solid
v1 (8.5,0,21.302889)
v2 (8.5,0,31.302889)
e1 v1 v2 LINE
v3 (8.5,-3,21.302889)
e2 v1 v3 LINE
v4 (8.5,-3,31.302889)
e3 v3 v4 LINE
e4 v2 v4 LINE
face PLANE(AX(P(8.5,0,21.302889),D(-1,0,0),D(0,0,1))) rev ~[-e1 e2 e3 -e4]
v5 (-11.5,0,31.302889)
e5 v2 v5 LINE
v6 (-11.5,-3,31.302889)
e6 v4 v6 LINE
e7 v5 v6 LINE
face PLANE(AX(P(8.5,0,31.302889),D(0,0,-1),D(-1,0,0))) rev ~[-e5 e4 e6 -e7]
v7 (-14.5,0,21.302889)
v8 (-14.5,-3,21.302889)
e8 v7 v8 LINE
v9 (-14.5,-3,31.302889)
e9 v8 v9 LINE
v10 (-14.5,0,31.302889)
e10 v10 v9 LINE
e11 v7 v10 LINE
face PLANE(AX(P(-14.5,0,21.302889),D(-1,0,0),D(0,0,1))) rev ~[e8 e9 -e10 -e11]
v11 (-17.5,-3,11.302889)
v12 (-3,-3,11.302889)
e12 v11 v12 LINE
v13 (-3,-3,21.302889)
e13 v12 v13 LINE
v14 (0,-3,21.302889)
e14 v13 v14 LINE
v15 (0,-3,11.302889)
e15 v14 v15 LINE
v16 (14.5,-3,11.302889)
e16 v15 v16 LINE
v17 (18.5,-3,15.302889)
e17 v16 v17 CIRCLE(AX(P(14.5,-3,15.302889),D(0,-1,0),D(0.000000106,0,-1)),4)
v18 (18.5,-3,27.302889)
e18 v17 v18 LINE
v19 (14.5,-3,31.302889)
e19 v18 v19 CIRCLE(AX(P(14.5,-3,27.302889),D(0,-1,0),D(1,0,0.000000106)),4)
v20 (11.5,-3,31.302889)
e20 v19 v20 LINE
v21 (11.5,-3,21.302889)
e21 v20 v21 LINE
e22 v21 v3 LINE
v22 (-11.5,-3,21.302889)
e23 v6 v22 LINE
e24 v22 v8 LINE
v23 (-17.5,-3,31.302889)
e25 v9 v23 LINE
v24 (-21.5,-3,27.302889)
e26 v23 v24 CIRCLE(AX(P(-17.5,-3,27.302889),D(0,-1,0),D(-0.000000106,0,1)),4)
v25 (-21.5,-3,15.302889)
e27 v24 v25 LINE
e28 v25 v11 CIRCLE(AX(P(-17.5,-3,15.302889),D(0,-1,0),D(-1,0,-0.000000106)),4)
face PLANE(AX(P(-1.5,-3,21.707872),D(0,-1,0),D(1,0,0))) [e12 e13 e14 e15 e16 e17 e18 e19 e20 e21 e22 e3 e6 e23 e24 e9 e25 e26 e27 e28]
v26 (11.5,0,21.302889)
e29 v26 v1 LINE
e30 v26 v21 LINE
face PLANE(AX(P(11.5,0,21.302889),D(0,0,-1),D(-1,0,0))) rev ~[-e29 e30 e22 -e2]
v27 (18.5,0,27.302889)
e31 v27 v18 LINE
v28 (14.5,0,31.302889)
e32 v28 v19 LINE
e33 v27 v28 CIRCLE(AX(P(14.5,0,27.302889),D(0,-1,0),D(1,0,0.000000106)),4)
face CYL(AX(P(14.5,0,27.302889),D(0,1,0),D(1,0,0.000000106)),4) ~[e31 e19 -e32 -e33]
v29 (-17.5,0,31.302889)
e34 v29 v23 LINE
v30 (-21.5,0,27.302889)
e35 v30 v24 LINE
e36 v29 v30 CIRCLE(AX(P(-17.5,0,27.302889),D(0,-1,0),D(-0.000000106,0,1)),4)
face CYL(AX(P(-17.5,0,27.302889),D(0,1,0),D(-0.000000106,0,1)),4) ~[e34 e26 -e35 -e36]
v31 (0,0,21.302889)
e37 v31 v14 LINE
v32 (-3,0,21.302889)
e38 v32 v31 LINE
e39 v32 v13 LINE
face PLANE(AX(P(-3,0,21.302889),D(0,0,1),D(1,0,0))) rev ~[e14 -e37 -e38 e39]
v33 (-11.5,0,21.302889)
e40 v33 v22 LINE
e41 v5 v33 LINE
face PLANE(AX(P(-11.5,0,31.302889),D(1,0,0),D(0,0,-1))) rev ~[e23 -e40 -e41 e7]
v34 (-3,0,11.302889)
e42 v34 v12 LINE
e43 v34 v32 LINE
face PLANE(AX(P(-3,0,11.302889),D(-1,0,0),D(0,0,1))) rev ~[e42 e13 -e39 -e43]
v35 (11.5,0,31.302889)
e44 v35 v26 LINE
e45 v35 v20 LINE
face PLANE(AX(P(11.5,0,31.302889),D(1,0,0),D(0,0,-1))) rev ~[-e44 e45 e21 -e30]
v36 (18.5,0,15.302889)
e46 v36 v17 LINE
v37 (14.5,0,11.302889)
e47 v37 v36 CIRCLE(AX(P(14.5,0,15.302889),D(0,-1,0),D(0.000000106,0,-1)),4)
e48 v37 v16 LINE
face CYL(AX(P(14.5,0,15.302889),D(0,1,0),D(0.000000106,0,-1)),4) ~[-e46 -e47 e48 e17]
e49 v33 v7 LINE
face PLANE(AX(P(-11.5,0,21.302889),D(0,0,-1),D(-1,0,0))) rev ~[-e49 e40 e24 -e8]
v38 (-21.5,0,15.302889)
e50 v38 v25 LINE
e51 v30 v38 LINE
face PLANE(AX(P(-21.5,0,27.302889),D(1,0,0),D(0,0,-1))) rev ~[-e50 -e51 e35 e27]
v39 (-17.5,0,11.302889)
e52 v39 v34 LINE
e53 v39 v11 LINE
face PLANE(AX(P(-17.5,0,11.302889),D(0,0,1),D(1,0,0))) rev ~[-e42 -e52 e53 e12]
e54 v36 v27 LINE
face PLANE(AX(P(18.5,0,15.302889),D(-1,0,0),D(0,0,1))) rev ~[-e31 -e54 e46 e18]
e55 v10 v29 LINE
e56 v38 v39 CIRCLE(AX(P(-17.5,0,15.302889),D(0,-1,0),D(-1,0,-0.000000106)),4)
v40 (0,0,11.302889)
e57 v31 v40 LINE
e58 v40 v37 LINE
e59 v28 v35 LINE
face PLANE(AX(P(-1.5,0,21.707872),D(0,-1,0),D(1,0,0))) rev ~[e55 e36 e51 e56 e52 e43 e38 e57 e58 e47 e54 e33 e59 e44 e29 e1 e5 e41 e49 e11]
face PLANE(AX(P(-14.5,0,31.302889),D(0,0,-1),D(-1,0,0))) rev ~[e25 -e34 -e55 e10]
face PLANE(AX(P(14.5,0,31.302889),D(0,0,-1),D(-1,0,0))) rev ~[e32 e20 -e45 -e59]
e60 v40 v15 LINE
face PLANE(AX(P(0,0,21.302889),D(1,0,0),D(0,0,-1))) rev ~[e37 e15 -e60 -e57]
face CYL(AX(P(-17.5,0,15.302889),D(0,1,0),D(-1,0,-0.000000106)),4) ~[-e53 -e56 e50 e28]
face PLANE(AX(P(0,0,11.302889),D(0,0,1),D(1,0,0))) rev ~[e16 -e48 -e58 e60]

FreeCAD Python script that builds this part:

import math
import FreeCAD as App
import Part
import Sketcher

V = App.Vector

doc = App.newDocument("Part")
params = doc.addObject("Spreadsheet::Sheet", "Params")
for row, (alias, value) in enumerate([
    ("sketch1_radius", "4 mm"),
    ("sketch1_width", "3 mm"),
    ("sketch1_width2", "20 mm"),
    ("sketch1_height", "12 mm"),
    ("pad1_length", "3 mm"),
], start=1):
    params.set(f"A{row}", alias)
    params.set(f"B{row}", "=" + value)
    params.setAlias(f"B{row}", alias)

body = doc.addObject("PartDesign::Body", "Body")

# Sketch on XZ plane
sketch1 = body.newObject("Sketcher::SketchObject", "Sketch")
sketch1.AttachmentSupport = (doc.getObject("XZ_Plane"), [""])
sketch1.MapMode = "FlatFace"
sketch1.addGeometry(Part.LineSegment(V(-14.5, 31.302889, 0), V(-17.5, 31.302889, 0)), False)
sketch1.addGeometry(Part.ArcOfCircle(Part.Circle(V(-17.5, 27.302889, 0), V(0, 0, 1), 4), math.radians(90.000006), math.radians(179.999994)), False)
sketch1.addGeometry(Part.LineSegment(V(-21.5, 27.302889, 0), V(-21.5, 15.302889, 0)), False)
sketch1.addGeometry(Part.ArcOfCircle(Part.Circle(V(-17.5, 15.302889, 0), V(0, 0, 1), 4), math.radians(-179.999994), math.radians(-90.000006)), False)
sketch1.addGeometry(Part.LineSegment(V(-17.5, 11.302889, 0), V(-3, 11.302889, 0)), False)
sketch1.addGeometry(Part.LineSegment(V(-3, 11.302889, 0), V(-3, 21.302889, 0)), False)
sketch1.addGeometry(Part.LineSegment(V(-3, 21.302889, 0), V(0, 21.302889, 0)), False)
sketch1.addGeometry(Part.LineSegment(V(0, 21.302889, 0), V(0, 11.302889, 0)), False)
sketch1.addGeometry(Part.LineSegment(V(0, 11.302889, 0), V(14.5, 11.302889, 0)), False)
sketch1.addGeometry(Part.ArcOfCircle(Part.Circle(V(14.5, 15.302889, 0), V(0, 0, 1), 4), math.radians(-89.999994), math.radians(-0.000006)), False)
sketch1.addGeometry(Part.LineSegment(V(18.5, 15.302889, 0), V(18.5, 27.302889, 0)), False)
sketch1.addGeometry(Part.ArcOfCircle(Part.Circle(V(14.5, 27.302889, 0), V(0, 0, 1), 4), math.radians(0.000006), math.radians(89.999994)), False)
sketch1.addGeometry(Part.LineSegment(V(14.5, 31.302889, 0), V(11.5, 31.302889, 0)), False)
sketch1.addGeometry(Part.LineSegment(V(11.5, 31.302889, 0), V(11.5, 21.302889, 0)), False)
sketch1.addGeometry(Part.LineSegment(V(11.5, 21.302889, 0), V(8.5, 21.302889, 0)), False)
sketch1.addGeometry(Part.LineSegment(V(8.5, 21.302889, 0), V(8.5, 31.302889, 0)), False)
sketch1.addGeometry(Part.LineSegment(V(8.5, 31.302889, 0), V(-11.5, 31.302889, 0)), False)
sketch1.addGeometry(Part.LineSegment(V(-11.5, 31.302889, 0), V(-11.5, 21.302889, 0)), False)
sketch1.addGeometry(Part.LineSegment(V(-11.5, 21.302889, 0), V(-14.5, 21.302889, 0)), False)
sketch1.addGeometry(Part.LineSegment(V(-14.5, 21.302889, 0), V(-14.5, 31.302889, 0)), False)
sketch1.addConstraint(Sketcher.Constraint("Tangent", 0, 2, 1, 1))
sketch1.addConstraint(Sketcher.Constraint("Tangent", 1, 2, 2, 1))
sketch1.addConstraint(Sketcher.Constraint("Tangent", 2, 2, 3, 1))
sketch1.addConstraint(Sketcher.Constraint("Tangent", 3, 2, 4, 1))
sketch1.addConstraint(Sketcher.Constraint("Coincident", 4, 2, 5, 1))
sketch1.addConstraint(Sketcher.Constraint("Coincident", 5, 2, 6, 1))
sketch1.addConstraint(Sketcher.Constraint("Coincident", 6, 2, 7, 1))
sketch1.addConstraint(Sketcher.Constraint("Coincident", 7, 2, 8, 1))
sketch1.addConstraint(Sketcher.Constraint("Tangent", 8, 2, 9, 1))
sketch1.addConstraint(Sketcher.Constraint("Tangent", 9, 2, 10, 1))
sketch1.addConstraint(Sketcher.Constraint("Tangent", 10, 2, 11, 1))
sketch1.addConstraint(Sketcher.Constraint("Tangent", 11, 2, 12, 1))
sketch1.addConstraint(Sketcher.Constraint("Coincident", 12, 2, 13, 1))
sketch1.addConstraint(Sketcher.Constraint("Coincident", 13, 2, 14, 1))
sketch1.addConstraint(Sketcher.Constraint("Coincident", 14, 2, 15, 1))
sketch1.addConstraint(Sketcher.Constraint("Coincident", 15, 2, 16, 1))
sketch1.addConstraint(Sketcher.Constraint("Coincident", 16, 2, 17, 1))
sketch1.addConstraint(Sketcher.Constraint("Coincident", 17, 2, 18, 1))
sketch1.addConstraint(Sketcher.Constraint("Coincident", 18, 2, 19, 1))
sketch1.addConstraint(Sketcher.Constraint("Coincident", 19, 2, 0, 1))
sketch1.addConstraint(Sketcher.Constraint("Horizontal", 0))
sketch1.addConstraint(Sketcher.Constraint("Vertical", 2))
sketch1.addConstraint(Sketcher.Constraint("Horizontal", 4))
sketch1.addConstraint(Sketcher.Constraint("Vertical", 5))
sketch1.addConstraint(Sketcher.Constraint("Horizontal", 6))
sketch1.addConstraint(Sketcher.Constraint("Vertical", 7))
sketch1.addConstraint(Sketcher.Constraint("Horizontal", 8))
sketch1.addConstraint(Sketcher.Constraint("Vertical", 10))
sketch1.addConstraint(Sketcher.Constraint("Horizontal", 12))
sketch1.addConstraint(Sketcher.Constraint("Vertical", 13))
sketch1.addConstraint(Sketcher.Constraint("Horizontal", 14))
sketch1.addConstraint(Sketcher.Constraint("Vertical", 15))
sketch1.addConstraint(Sketcher.Constraint("Horizontal", 16))
sketch1.addConstraint(Sketcher.Constraint("Vertical", 17))
sketch1.addConstraint(Sketcher.Constraint("Horizontal", 18))
sketch1.addConstraint(Sketcher.Constraint("Vertical", 19))
sketch1.addConstraint(Sketcher.Constraint("Equal", 1, 3))
sketch1.addConstraint(Sketcher.Constraint("Equal", 3, 9))
sketch1.addConstraint(Sketcher.Constraint("Equal", 9, 11))
sketch1.addConstraint(Sketcher.Constraint("Symmetric", 12, 2, 16, 2, -2))
sketch1.addConstraint(Sketcher.Constraint("Symmetric", 11, 2, 19, 2, -2))
sketch1.addConstraint(Sketcher.Constraint("PointOnObject", 6, 2, -2))
sketch1.addConstraint(Sketcher.Constraint("Horizontal", 3, 3, 9, 3))
sketch1.addConstraint(Sketcher.Constraint("Horizontal", 6, 2, 13, 2))
sketch1.addConstraint(Sketcher.Constraint("Horizontal", 14, 2, 17, 2))
sketch1.addConstraint(Sketcher.Constraint("Equal", 0, 6))
sketch1.addConstraint(Sketcher.Constraint("Equal", 6, 12))
sketch1.addConstraint(Sketcher.Constraint("Equal", 12, 14))
sketch1.addConstraint(Sketcher.Constraint("Equal", 7, 13))
sketch1.addConstraint(Sketcher.Constraint("Radius", 1, 4.0))
sketch1.addConstraint(Sketcher.Constraint("DistanceX", 0, 2, 0, 1, 3.0))
sketch1.addConstraint(Sketcher.Constraint("DistanceX", 16, 2, 16, 1, 20.0))
sketch1.addConstraint(Sketcher.Constraint("DistanceY", 2, 2, 2, 1, 12.0))
sketch1.addConstraint(Sketcher.Constraint("DistanceY", -1, 1, 1, 3, 27.302889))
sketch1.setExpression("Constraints[49]", "Params.sketch1_radius")
sketch1.setExpression("Constraints[50]", "Params.sketch1_width")
sketch1.setExpression("Constraints[51]", "Params.sketch1_width2")
sketch1.setExpression("Constraints[52]", "Params.sketch1_height")
pad1 = body.newObject("PartDesign::Pad", "Pad")
pad1.Profile = sketch1
pad1.setExpression("Length", "Params.pad1_length")

doc.recompute()
